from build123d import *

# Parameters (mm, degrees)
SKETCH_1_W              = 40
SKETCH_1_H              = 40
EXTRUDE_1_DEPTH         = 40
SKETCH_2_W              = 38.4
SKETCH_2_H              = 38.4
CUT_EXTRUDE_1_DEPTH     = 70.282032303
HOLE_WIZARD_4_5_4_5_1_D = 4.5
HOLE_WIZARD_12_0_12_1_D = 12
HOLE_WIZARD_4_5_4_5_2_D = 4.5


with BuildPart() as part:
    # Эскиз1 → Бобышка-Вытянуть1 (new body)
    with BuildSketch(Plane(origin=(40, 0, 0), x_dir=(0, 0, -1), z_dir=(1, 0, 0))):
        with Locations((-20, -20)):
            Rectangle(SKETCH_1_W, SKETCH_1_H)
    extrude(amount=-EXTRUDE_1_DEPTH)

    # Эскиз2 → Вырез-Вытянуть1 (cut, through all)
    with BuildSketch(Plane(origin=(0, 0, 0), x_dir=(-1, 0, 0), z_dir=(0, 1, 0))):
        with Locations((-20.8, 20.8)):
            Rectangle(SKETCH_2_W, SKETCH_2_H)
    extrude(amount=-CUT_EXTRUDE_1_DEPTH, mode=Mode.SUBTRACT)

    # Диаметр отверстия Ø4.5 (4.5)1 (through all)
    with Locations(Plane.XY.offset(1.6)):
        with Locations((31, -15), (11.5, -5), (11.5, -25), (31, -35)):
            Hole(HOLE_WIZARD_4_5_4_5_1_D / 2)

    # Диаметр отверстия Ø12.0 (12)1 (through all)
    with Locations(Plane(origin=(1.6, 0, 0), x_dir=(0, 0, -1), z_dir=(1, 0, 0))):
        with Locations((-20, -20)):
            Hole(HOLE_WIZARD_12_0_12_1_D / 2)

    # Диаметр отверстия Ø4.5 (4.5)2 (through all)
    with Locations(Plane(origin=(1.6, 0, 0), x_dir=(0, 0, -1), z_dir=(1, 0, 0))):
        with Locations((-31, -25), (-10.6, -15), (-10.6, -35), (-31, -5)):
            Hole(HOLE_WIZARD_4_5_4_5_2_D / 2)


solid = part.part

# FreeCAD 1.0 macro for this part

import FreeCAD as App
import Part
import Sketcher

V = App.Vector

doc = App.newDocument("Part")
body = doc.addObject("PartDesign::Body", "Body")

sketch1 = body.newObject("Sketcher::SketchObject", "Sketch")
sketch1.AttachmentSupport = (doc.getObject("YZ_Plane"), [""])
sketch1.MapMode = "FlatFace"
sketch1.AttachmentOffset = App.Placement(V(0, 0, 40), App.Rotation())
sketch1.addGeometry([
    Part.LineSegment(V(0, 40, 0), V(-40, 40, 0)),
    Part.LineSegment(V(-40, 40, 0), V(-40, 0, 0)),
    Part.LineSegment(V(-40, 0, 0), V(0, 0, 0)),
    Part.LineSegment(V(0, 0, 0), V(0, 40, 0)),
], False)
sketch1.addConstraint([
    Sketcher.Constraint("Coincident", 0, 2, 1, 1),
    Sketcher.Constraint("Coincident", 1, 2, 2, 1),
    Sketcher.Constraint("Coincident", 2, 2, 3, 1),
    Sketcher.Constraint("Coincident", 3, 2, 0, 1),
    Sketcher.Constraint("Horizontal", 0),
    Sketcher.Constraint("Vertical", 1),
    Sketcher.Constraint("Horizontal", 2),
    Sketcher.Constraint("Vertical", 3),
    Sketcher.Constraint("Coincident", 2, 2, -1, 1),
    Sketcher.Constraint("Equal", 2, 1),
    Sketcher.Constraint("DistanceX", 0, 2, 0, 1, 40.0),
])
pad1 = body.newObject("PartDesign::Pad", "Pad")
pad1.Profile = sketch1
pad1.Length = 40
pad1.Reversed = True

sketch2 = body.newObject("Sketcher::SketchObject", "Sketch001")
sketch2.AttachmentSupport = (doc.getObject("XZ_Plane"), [""])
sketch2.MapMode = "FlatFace"
sketch2.addGeometry([
    Part.LineSegment(V(40, 40, 0), V(40, 1.6, 0)),
    Part.LineSegment(V(40, 1.6, 0), V(1.6, 1.6, 0)),
    Part.LineSegment(V(1.6, 1.6, 0), V(1.6, 40, 0)),
    Part.LineSegment(V(1.6, 40, 0), V(40, 40, 0)),
], False)
sketch2.addConstraint([
    Sketcher.Constraint("Coincident", 0, 2, 1, 1),
    Sketcher.Constraint("Coincident", 1, 2, 2, 1),
    Sketcher.Constraint("Coincident", 2, 2, 3, 1),
    Sketcher.Constraint("Coincident", 3, 2, 0, 1),
    Sketcher.Constraint("Vertical", 0),
    Sketcher.Constraint("Horizontal", 1),
    Sketcher.Constraint("Vertical", 2),
    Sketcher.Constraint("Horizontal", 3),
    Sketcher.Constraint("Equal", 3, 0),
    Sketcher.Constraint("DistanceX", 1, 2, 1, 1, 38.4),
    Sketcher.Constraint("DistanceX", -1, 1, 0, 2, 40.0),
    Sketcher.Constraint("DistanceY", -1, 1, 2, 2, 40.0),
])
pocket1 = body.newObject("PartDesign::Pocket", "Pocket")
pocket1.Profile = sketch2
pocket1.Type = "ThroughAll"
pocket1.Reversed = True

sketch3 = body.newObject("Sketcher::SketchObject", "Sketch002")
sketch3.AttachmentSupport = (doc.getObject("XY_Plane"), [""])
sketch3.MapMode = "FlatFace"
sketch3.AttachmentOffset = App.Placement(V(0, 0, 1.6), App.Rotation())
sketch3.addGeometry([
    Part.Circle(V(31, -15, 0), V(0, 0, 1), 2.25),
    Part.Circle(V(11.5, -5, 0), V(0, 0, 1), 2.25),
    Part.Circle(V(11.5, -25, 0), V(0, 0, 1), 2.25),
    Part.Circle(V(31, -35, 0), V(0, 0, 1), 2.25),
], False)
sketch3.addConstraint([
    Sketcher.Constraint("Equal", 0, 1),
    Sketcher.Constraint("Equal", 1, 2),
    Sketcher.Constraint("Equal", 2, 3),
    Sketcher.Constraint("Vertical", 1, 3, 2, 3),
    Sketcher.Constraint("Vertical", 0, 3, 3, 3),
    Sketcher.Constraint("Diameter", 0, 4.5),
    Sketcher.Constraint("DistanceX", -1, 1, 0, 3, 31.0),
    Sketcher.Constraint("DistanceY", 0, 3, -1, 1, 15.0),
    Sketcher.Constraint("DistanceY", 1, 3, -1, 1, 5.0),
    Sketcher.Constraint("DistanceY", 2, 3, -1, 1, 25.0),
    Sketcher.Constraint("DistanceY", 3, 3, -1, 1, 35.0),
    Sketcher.Constraint("DistanceX", -1, 1, 1, 3, 11.5),
])
doc.recompute()
hole = body.newObject("PartDesign::Hole", "Hole")
hole.Profile = sketch3
hole.ThreadType = "None"
hole.Diameter = 4.5
hole.DepthType = "ThroughAll"

sketch4 = body.newObject("Sketcher::SketchObject", "Sketch003")
sketch4.AttachmentSupport = (doc.getObject("YZ_Plane"), [""])
sketch4.MapMode = "FlatFace"
sketch4.AttachmentOffset = App.Placement(V(0, 0, 1.6), App.Rotation())
sketch4.addGeometry(Part.Circle(V(-20, 20, 0), V(0, 0, 1), 6), False)
sketch4.addConstraint([
    Sketcher.Constraint("Diameter", 0, 12.0),
    Sketcher.Constraint("DistanceX", 0, 3, -1, 1, 20.0),
    Sketcher.Constraint("DistanceY", -1, 1, 0, 3, 20.0),
])
doc.recompute()
hole2 = body.newObject("PartDesign::Hole", "Hole001")
hole2.Profile = sketch4
hole2.ThreadType = "None"
hole2.Diameter = 12
hole2.DepthType = "ThroughAll"

sketch5 = body.newObject("Sketcher::SketchObject", "Sketch004")
sketch5.AttachmentSupport = (doc.getObject("YZ_Plane"), [""])
sketch5.MapMode = "FlatFace"
sketch5.AttachmentOffset = App.Placement(V(0, 0, 1.6), App.Rotation())
sketch5.addGeometry([
    Part.Circle(V(-25, 31, 0), V(0, 0, 1), 2.25),
    Part.Circle(V(-15, 10.6, 0), V(0, 0, 1), 2.25),
    Part.Circle(V(-35, 10.6, 0), V(0, 0, 1), 2.25),
    Part.Circle(V(-5, 31, 0), V(0, 0, 1), 2.25),
], False)
sketch5.addConstraint([
    Sketcher.Constraint("Equal", 0, 1),
    Sketcher.Constraint("Equal", 1, 2),
    Sketcher.Constraint("Equal", 2, 3),
    Sketcher.Constraint("Horizontal", 1, 3, 2, 3),
    Sketcher.Constraint("Horizontal", 0, 3, 3, 3),
    Sketcher.Constraint("Diameter", 0, 4.5),
    Sketcher.Constraint("DistanceX", 0, 3, -1, 1, 25.0),
    Sketcher.Constraint("DistanceY", -1, 1, 0, 3, 31.0),
    Sketcher.Constraint("DistanceX", 1, 3, -1, 1, 15.0),
    Sketcher.Constraint("DistanceX", 2, 3, -1, 1, 35.0),
    Sketcher.Constraint("DistanceX", 3, 3, -1, 1, 5.0),
    Sketcher.Constraint("DistanceY", -1, 1, 1, 3, 10.6),
])
doc.recompute()
hole3 = body.newObject("PartDesign::Hole", "Hole002")
hole3.Profile = sketch5
hole3.ThreadType = "None"
hole3.Diameter = 4.5
hole3.DepthType = "ThroughAll"

doc.recompute()
